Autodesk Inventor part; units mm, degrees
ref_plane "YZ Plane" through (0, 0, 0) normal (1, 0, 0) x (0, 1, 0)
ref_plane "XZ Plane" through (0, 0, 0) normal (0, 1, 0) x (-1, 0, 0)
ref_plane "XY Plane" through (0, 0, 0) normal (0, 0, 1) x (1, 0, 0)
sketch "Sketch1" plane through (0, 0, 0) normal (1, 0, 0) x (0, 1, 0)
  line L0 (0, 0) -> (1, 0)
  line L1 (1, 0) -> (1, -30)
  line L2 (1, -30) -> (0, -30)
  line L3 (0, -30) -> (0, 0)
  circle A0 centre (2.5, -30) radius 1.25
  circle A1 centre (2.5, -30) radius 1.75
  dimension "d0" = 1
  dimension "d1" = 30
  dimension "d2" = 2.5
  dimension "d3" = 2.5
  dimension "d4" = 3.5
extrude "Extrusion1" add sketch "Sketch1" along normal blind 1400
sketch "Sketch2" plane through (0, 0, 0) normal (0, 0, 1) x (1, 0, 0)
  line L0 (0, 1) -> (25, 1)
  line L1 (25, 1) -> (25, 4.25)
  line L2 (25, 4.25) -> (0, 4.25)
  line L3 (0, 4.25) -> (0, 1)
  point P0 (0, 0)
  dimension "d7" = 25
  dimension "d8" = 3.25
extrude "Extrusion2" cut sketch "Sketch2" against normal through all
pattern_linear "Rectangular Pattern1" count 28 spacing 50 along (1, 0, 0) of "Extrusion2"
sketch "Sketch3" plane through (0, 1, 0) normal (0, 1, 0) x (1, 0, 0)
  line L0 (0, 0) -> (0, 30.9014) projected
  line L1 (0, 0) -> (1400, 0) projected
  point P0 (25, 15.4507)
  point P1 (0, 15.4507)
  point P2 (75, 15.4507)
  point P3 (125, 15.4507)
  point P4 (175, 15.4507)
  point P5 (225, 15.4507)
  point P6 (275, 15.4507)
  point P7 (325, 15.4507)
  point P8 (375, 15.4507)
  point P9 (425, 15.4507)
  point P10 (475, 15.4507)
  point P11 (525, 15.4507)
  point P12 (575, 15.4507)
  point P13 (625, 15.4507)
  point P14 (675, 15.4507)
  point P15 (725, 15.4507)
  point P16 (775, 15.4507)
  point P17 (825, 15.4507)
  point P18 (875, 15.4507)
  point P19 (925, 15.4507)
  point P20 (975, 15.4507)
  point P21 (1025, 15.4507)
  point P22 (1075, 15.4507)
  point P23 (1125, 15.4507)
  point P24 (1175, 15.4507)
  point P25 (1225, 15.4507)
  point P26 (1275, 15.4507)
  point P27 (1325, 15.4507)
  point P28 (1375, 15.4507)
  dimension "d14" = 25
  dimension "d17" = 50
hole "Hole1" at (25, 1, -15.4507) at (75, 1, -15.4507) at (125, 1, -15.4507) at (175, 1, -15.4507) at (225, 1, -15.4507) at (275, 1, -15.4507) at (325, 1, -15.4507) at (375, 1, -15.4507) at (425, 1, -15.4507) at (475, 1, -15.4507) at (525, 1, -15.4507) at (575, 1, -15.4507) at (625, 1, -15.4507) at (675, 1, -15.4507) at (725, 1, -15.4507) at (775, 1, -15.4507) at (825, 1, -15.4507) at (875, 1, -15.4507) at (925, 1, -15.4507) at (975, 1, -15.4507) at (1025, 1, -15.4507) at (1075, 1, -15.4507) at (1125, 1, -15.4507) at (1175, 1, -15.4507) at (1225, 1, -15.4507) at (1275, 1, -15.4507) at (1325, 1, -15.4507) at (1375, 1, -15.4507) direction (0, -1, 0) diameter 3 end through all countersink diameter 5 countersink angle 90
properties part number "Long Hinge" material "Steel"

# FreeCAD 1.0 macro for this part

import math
import FreeCAD as App
import Part
import Sketcher

V = App.Vector
Q = App.Units.Quantity


def add_polygon(sketch, points):
    """Adds a closed chain of lines whose ends are joined by coincident constraints."""
    first, n = sketch.GeometryCount, len(points)
    for a, b in zip(points, points[1:] + points[:1]):
        sketch.addGeometry(Part.LineSegment(App.Vector(*a, 0), App.Vector(*b, 0)), False)
    for i in range(n):
        sketch.addConstraint(Sketcher.Constraint("Coincident", first + i, 2, first + (i + 1) % n, 1))

doc = App.newDocument("Part")
body = doc.addObject("PartDesign::Body", "Body")

sketch1 = doc.addObject("Sketcher::SketchObject", "Sketch")
body.addObject(sketch1)
sketch1.AttachmentSupport = (doc.YZ_Plane, [""])
sketch1.MapMode = "FlatFace"
sketch1.addGeometry([
    Part.LineSegment(V(1, 0, 0), V(0, 0, 0)),
    Part.LineSegment(V(0, 0, 0), V(0, -30, 0)),
    Part.LineSegment(V(0, -30, 0), V(0.75, -30, 0)),
    Part.ArcOfCircle(Part.Circle(V(2.5, -30, 0), V(0, 0, 1), 1.75), math.radians(180), math.radians(508.997281)),
    Part.LineSegment(V(1, -29.098612, 0), V(1, 0, 0)),
    Part.Circle(V(2.5, -30, 0), V(0, 0, 1), 1.25),
], False)
sketch1.addConstraint([
    Sketcher.Constraint("Coincident", 0, 2, 1, 1),
    Sketcher.Constraint("Coincident", 1, 2, 2, 1),
    Sketcher.Constraint("Coincident", 2, 2, 3, 1),
    Sketcher.Constraint("Coincident", 3, 2, 4, 1),
    Sketcher.Constraint("Coincident", 4, 2, 0, 1),
    Sketcher.Constraint("Horizontal", 0),
    Sketcher.Constraint("Vertical", 1),
    Sketcher.Constraint("Horizontal", 2),
    Sketcher.Constraint("Vertical", 4),
    Sketcher.Constraint("Coincident", 0, 2, -1, 1),
    Sketcher.Constraint("Coincident", 5, 3, 3, 3),
    Sketcher.Constraint("Horizontal", 5, 3, 1, 2),
    Sketcher.Constraint("Diameter", 5, Q("2.5 mm")),
    Sketcher.Constraint("DistanceX", 0, 2, 0, 1, Q("1 mm")),
    Sketcher.Constraint("DistanceY", 1, 2, 1, 1, Q("30 mm")),
    Sketcher.Constraint("Radius", 3, Q("1.75 mm")),
    Sketcher.Constraint("DistanceX", -1, 1, 3, 3, Q("2.5 mm")),
])
pad1 = doc.addObject("PartDesign::Pad", "Pad")
body.addObject(pad1)
pad1.Profile = sketch1
pad1.Length = 1400

sketch2 = doc.addObject("Sketcher::SketchObject", "Sketch001")
body.addObject(sketch2)
sketch2.AttachmentSupport = (doc.XY_Plane, [""])
sketch2.MapMode = "FlatFace"
add_polygon(sketch2, [(0, 4.25), (0, 1), (25, 1), (25, 4.25)])
sketch2.addConstraint([
    Sketcher.Constraint("Vertical", 0),
    Sketcher.Constraint("Horizontal", 1),
    Sketcher.Constraint("Vertical", 2),
    Sketcher.Constraint("Horizontal", 3),
    Sketcher.Constraint("PointOnObject", 0, 2, -2),
    Sketcher.Constraint("DistanceX", 1, 1, 1, 2, Q("25 mm")),
    Sketcher.Constraint("DistanceY", 0, 2, 0, 1, Q("3.25 mm")),
    Sketcher.Constraint("DistanceY", -1, 1, 0, 2, Q("1 mm")),
])
pocket1 = doc.addObject("PartDesign::Pocket", "Pocket")
body.addObject(pocket1)
pocket1.Profile = sketch2
pocket1.Type = "ThroughAll"
doc.recompute()

linearpattern = doc.addObject("PartDesign::LinearPattern", "LinearPattern")
body.addObject(linearpattern)
linearpattern.Originals = [pocket1]
linearpattern.Direction = (doc.X_Axis, [""])
linearpattern.Mode = "offset"
linearpattern.Offset = 50
linearpattern.Occurrences = 28
body.Tip = linearpattern

sketch3 = doc.addObject("Sketcher::SketchObject", "Sketch002")
body.addObject(sketch3)
sketch3.AttachmentSupport = (doc.XZ_Plane, [""])
sketch3.MapMode = "FlatFace"
sketch3.AttachmentOffset = App.Placement(V(0, 0, -1), App.Rotation())
sketch3.addGeometry([
    Part.Circle(V(25, -15.4507, 0), V(0, 0, 1), 1.5),
    Part.Circle(V(75, -15.4507, 0), V(0, 0, 1), 1.5),
    Part.Circle(V(125, -15.4507, 0), V(0, 0, 1), 1.5),
    Part.Circle(V(175, -15.4507, 0), V(0, 0, 1), 1.5),
    Part.Circle(V(225, -15.4507, 0), V(0, 0, 1), 1.5),
    Part.Circle(V(275, -15.4507, 0), V(0, 0, 1), 1.5),
    Part.Circle(V(325, -15.4507, 0), V(0, 0, 1), 1.5),
    Part.Circle(V(375, -15.4507, 0), V(0, 0, 1), 1.5),
    Part.Circle(V(425, -15.4507, 0), V(0, 0, 1), 1.5),
    Part.Circle(V(475, -15.4507, 0), V(0, 0, 1), 1.5),
    Part.Circle(V(525, -15.4507, 0), V(0, 0, 1), 1.5),
    Part.Circle(V(575, -15.4507, 0), V(0, 0, 1), 1.5),
    Part.Circle(V(625, -15.4507, 0), V(0, 0, 1), 1.5),
    Part.Circle(V(675, -15.4507, 0), V(0, 0, 1), 1.5),
    Part.Circle(V(725, -15.4507, 0), V(0, 0, 1), 1.5),
    Part.Circle(V(775, -15.4507, 0), V(0, 0, 1), 1.5),
    Part.Circle(V(825, -15.4507, 0), V(0, 0, 1), 1.5),
    Part.Circle(V(875, -15.4507, 0), V(0, 0, 1), 1.5),
    Part.Circle(V(925, -15.4507, 0), V(0, 0, 1), 1.5),
    Part.Circle(V(975, -15.4507, 0), V(0, 0, 1), 1.5),
    Part.Circle(V(1025, -15.4507, 0), V(0, 0, 1), 1.5),
    Part.Circle(V(1075, -15.4507, 0), V(0, 0, 1), 1.5),
    Part.Circle(V(1125, -15.4507, 0), V(0, 0, 1), 1.5),
    Part.Circle(V(1175, -15.4507, 0), V(0, 0, 1), 1.5),
    Part.Circle(V(1225, -15.4507, 0), V(0, 0, 1), 1.5),
    Part.Circle(V(1275, -15.4507, 0), V(0, 0, 1), 1.5),
    Part.Circle(V(1325, -15.4507, 0), V(0, 0, 1), 1.5),
    Part.Circle(V(1375, -15.4507, 0), V(0, 0, 1), 1.5),
], False)
sketch3.addConstraint([
    Sketcher.Constraint("Equal", 0, 1),
    Sketcher.Constraint("Equal", 1, 2),
    Sketcher.Constraint("Equal", 2, 3),
    Sketcher.Constraint("Equal", 3, 4),
    Sketcher.Constraint("Equal", 4, 5),
    Sketcher.Constraint("Equal", 5, 6),
    Sketcher.Constraint("Equal", 6, 7),
    Sketcher.Constraint("Equal", 7, 8),
    Sketcher.Constraint("Equal", 8, 9),
    Sketcher.Constraint("Equal", 9, 10),
    Sketcher.Constraint("Equal", 10, 11),
    Sketcher.Constraint("Equal", 11, 12),
    Sketcher.Constraint("Equal", 12, 13),
    Sketcher.Constraint("Equal", 13, 14),
    Sketcher.Constraint("Equal", 14, 15),
    Sketcher.Constraint("Equal", 15, 16),
    Sketcher.Constraint("Equal", 16, 17),
    Sketcher.Constraint("Equal", 17, 18),
    Sketcher.Constraint("Equal", 18, 19),
    Sketcher.Constraint("Equal", 19, 20),
    Sketcher.Constraint("Equal", 20, 21),
    Sketcher.Constraint("Equal", 21, 22),
    Sketcher.Constraint("Equal", 22, 23),
    Sketcher.Constraint("Equal", 23, 24),
    Sketcher.Constraint("Equal", 24, 25),
    Sketcher.Constraint("Equal", 25, 26),
    Sketcher.Constraint("Equal", 26, 27),
    Sketcher.Constraint("Horizontal", 0, 3, 1, 3),
    Sketcher.Constraint("Horizontal", 1, 3, 2, 3),
    Sketcher.Constraint("Horizontal", 2, 3, 3, 3),
    Sketcher.Constraint("Horizontal", 3, 3, 4, 3),
    Sketcher.Constraint("Horizontal", 4, 3, 5, 3),
    Sketcher.Constraint("Horizontal", 5, 3, 6, 3),
    Sketcher.Constraint("Horizontal", 6, 3, 7, 3),
    Sketcher.Constraint("Horizontal", 7, 3, 8, 3),
    Sketcher.Constraint("Horizontal", 8, 3, 9, 3),
    Sketcher.Constraint("Horizontal", 9, 3, 10, 3),
    Sketcher.Constraint("Horizontal", 10, 3, 11, 3),
    Sketcher.Constraint("Horizontal", 11, 3, 12, 3),
    Sketcher.Constraint("Horizontal", 12, 3, 13, 3),
    Sketcher.Constraint("Horizontal", 13, 3, 14, 3),
    Sketcher.Constraint("Horizontal", 14, 3, 15, 3),
    Sketcher.Constraint("Horizontal", 15, 3, 16, 3),
    Sketcher.Constraint("Horizontal", 16, 3, 17, 3),
    Sketcher.Constraint("Horizontal", 17, 3, 18, 3),
    Sketcher.Constraint("Horizontal", 18, 3, 19, 3),
    Sketcher.Constraint("Horizontal", 19, 3, 20, 3),
    Sketcher.Constraint("Horizontal", 20, 3, 21, 3),
    Sketcher.Constraint("Horizontal", 21, 3, 22, 3),
    Sketcher.Constraint("Horizontal", 22, 3, 23, 3),
    Sketcher.Constraint("Horizontal", 23, 3, 24, 3),
    Sketcher.Constraint("Horizontal", 24, 3, 25, 3),
    Sketcher.Constraint("Horizontal", 25, 3, 26, 3),
    Sketcher.Constraint("Horizontal", 26, 3, 27, 3),
    Sketcher.Constraint("Diameter", 0, Q("3 mm")),
    Sketcher.Constraint("DistanceX", -1, 1, 0, 3, Q("25 mm")),
    Sketcher.Constraint("DistanceX", -1, 1, 1, 3, Q("75 mm")),
    Sketcher.Constraint("DistanceX", -1, 1, 2, 3, Q("125 mm")),
    Sketcher.Constraint("DistanceX", -1, 1, 3, 3, Q("175 mm")),
    Sketcher.Constraint("DistanceX", -1, 1, 4, 3, Q("225 mm")),
    Sketcher.Constraint("DistanceX", -1, 1, 5, 3, Q("275 mm")),
    Sketcher.Constraint("DistanceX", -1, 1, 6, 3, Q("325 mm")),
    Sketcher.Constraint("DistanceX", -1, 1, 7, 3, Q("375 mm")),
    Sketcher.Constraint("DistanceX", -1, 1, 8, 3, Q("425 mm")),
    Sketcher.Constraint("DistanceX", -1, 1, 9, 3, Q("475 mm")),
    Sketcher.Constraint("DistanceX", -1, 1, 10, 3, Q("525 mm")),
    Sketcher.Constraint("DistanceX", -1, 1, 11, 3, Q("575 mm")),
    Sketcher.Constraint("DistanceX", -1, 1, 12, 3, Q("625 mm")),
    Sketcher.Constraint("DistanceX", -1, 1, 13, 3, Q("675 mm")),
    Sketcher.Constraint("DistanceX", -1, 1, 14, 3, Q("725 mm")),
    Sketcher.Constraint("DistanceX", -1, 1, 15, 3, Q("775 mm")),
    Sketcher.Constraint("DistanceX", -1, 1, 16, 3, Q("825 mm")),
    Sketcher.Constraint("DistanceX", -1, 1, 17, 3, Q("875 mm")),
    Sketcher.Constraint("DistanceX", -1, 1, 18, 3, Q("925 mm")),
    Sketcher.Constraint("DistanceX", -1, 1, 19, 3, Q("975 mm")),
    Sketcher.Constraint("DistanceX", -1, 1, 20, 3, Q("1025 mm")),
    Sketcher.Constraint("DistanceX", -1, 1, 21, 3, Q("1075 mm")),
    Sketcher.Constraint("DistanceX", -1, 1, 22, 3, Q("1125 mm")),
    Sketcher.Constraint("DistanceX", -1, 1, 23, 3, Q("1175 mm")),
    Sketcher.Constraint("DistanceX", -1, 1, 24, 3, Q("1225 mm")),
    Sketcher.Constraint("DistanceX", -1, 1, 25, 3, Q("1275 mm")),
    Sketcher.Constraint("DistanceX", -1, 1, 26, 3, Q("1325 mm")),
    Sketcher.Constraint("DistanceX", -1, 1, 27, 3, Q("1375 mm")),
    Sketcher.Constraint("DistanceY", 0, 3, -1, 1, Q("15.4507 mm")),
])
doc.recompute()
hole = doc.addObject("PartDesign::Hole", "Hole")
body.addObject(hole)
hole.Profile = sketch3
hole.ThreadType = "None"
hole.Diameter = 3
hole.DepthType = "ThroughAll"
hole.HoleCutType = "Countersink"
hole.HoleCutDiameter = 5
hole.HoleCutCountersinkAngle = 90
hole.Reversed = True

doc.recompute()
